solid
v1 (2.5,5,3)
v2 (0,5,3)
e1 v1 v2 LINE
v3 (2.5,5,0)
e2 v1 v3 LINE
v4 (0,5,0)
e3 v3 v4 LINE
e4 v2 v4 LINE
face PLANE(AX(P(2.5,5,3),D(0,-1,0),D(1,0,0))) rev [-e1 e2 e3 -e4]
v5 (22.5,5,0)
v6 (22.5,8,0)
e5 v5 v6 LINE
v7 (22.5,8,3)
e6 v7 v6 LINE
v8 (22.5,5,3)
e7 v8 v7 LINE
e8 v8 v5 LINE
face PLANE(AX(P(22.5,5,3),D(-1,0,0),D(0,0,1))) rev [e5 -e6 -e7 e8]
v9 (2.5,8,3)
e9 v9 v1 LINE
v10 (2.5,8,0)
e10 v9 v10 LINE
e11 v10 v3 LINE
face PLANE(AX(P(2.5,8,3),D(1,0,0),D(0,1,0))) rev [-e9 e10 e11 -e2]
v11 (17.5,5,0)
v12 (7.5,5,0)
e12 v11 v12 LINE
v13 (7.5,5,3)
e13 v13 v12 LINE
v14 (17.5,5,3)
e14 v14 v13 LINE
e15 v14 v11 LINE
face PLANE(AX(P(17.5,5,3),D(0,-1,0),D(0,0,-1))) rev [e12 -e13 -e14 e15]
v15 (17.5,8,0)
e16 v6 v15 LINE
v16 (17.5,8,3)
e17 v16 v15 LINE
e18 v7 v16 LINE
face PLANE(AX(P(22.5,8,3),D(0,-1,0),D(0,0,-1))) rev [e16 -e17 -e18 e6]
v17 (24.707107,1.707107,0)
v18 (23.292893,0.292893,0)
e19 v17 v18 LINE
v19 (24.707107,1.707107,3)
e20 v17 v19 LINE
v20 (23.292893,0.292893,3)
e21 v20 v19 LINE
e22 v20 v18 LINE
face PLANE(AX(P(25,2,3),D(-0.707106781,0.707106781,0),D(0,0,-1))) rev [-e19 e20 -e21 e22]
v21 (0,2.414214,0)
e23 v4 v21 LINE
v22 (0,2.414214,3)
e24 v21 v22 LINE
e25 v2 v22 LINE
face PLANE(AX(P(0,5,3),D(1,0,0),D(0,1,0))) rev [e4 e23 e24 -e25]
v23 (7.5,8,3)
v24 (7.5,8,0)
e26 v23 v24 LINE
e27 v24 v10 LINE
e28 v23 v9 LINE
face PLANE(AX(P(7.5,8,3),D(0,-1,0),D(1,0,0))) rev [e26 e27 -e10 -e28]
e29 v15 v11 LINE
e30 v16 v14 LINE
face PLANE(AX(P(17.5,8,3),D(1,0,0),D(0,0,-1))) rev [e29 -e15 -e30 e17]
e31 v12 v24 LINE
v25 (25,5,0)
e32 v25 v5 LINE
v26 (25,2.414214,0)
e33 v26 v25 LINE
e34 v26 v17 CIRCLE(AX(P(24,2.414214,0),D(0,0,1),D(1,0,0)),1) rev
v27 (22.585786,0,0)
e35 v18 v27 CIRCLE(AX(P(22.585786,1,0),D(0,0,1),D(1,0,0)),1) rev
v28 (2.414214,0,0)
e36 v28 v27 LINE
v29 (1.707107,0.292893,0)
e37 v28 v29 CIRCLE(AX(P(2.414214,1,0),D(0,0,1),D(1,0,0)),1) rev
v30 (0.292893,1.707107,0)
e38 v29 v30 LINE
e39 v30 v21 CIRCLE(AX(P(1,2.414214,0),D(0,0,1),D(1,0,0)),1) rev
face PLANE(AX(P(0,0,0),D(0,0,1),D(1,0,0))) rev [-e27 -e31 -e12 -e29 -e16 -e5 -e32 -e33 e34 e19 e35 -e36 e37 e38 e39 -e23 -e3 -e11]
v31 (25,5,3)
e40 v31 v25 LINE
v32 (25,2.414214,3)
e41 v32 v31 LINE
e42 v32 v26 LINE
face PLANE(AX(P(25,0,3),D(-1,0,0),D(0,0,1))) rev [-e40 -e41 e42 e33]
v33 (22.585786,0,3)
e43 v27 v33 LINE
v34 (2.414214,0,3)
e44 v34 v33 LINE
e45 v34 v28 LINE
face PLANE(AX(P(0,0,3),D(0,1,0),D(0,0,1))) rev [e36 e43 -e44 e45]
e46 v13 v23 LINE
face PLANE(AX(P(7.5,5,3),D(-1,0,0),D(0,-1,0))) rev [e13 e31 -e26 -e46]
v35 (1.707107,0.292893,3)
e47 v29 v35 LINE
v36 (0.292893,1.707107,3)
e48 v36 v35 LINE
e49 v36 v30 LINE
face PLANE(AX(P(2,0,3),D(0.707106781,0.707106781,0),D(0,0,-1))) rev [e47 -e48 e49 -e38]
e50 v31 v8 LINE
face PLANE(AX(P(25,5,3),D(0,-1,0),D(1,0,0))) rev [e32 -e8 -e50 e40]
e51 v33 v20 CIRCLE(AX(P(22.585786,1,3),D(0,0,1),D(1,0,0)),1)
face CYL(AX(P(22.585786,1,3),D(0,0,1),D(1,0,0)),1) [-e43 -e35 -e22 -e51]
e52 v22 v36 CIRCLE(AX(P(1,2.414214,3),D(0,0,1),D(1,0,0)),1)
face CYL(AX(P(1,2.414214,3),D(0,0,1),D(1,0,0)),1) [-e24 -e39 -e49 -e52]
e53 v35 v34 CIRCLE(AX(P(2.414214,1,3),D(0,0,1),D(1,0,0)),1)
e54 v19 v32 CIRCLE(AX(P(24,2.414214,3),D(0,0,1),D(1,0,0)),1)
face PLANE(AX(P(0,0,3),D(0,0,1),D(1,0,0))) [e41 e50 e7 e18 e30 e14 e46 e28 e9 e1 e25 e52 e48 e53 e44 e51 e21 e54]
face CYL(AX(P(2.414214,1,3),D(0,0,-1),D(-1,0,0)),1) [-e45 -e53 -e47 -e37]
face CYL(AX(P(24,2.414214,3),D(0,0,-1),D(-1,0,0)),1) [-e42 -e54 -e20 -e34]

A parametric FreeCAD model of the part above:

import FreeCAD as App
import Part
import Sketcher
from FreeCAD import Vector
Q = App.Units.Quantity


def edges_at(feature, points):
    """Names of the edges that pass closest to the given points."""
    edges = feature.Shape.Edges
    near = lambda p: min(range(len(edges)), key=lambda i: edges[i].distToShape(Part.Vertex(*p))[0])
    return sorted({f"Edge{near(p) + 1}" for p in points})


def add_polygon(sketch, points):
    """Adds a closed chain of lines whose ends are joined by coincident constraints."""
    first, n = sketch.GeometryCount, len(points)
    for a, b in zip(points, points[1:] + points[:1]):
        sketch.addGeometry(Part.LineSegment(App.Vector(*a, 0), App.Vector(*b, 0)), False)
    for i in range(n):
        sketch.addConstraint(Sketcher.Constraint("Coincident", first + i, 2, first + (i + 1) % n, 1))

doc = App.newDocument("Part")
body = doc.addObject("PartDesign::Body", "Body")

sketch1 = doc.addObject("Sketcher::SketchObject", "Sketch")
body.addObject(sketch1)
sketch1.AttachmentSupport = (doc.XY_Plane, [""])
sketch1.MapMode = "FlatFace"
add_polygon(sketch1, [(0, 0), (25, 0), (25, 5), (22.5, 5), (22.5, 8), (17.5, 8), (17.5, 5), (7.5, 5), (7.5, 8), (2.5, 8), (2.5, 5), (0, 5)])
sketch1.addConstraint([
    Sketcher.Constraint("Horizontal", 0),
    Sketcher.Constraint("Vertical", 1),
    Sketcher.Constraint("Horizontal", 2),
    Sketcher.Constraint("Vertical", 3),
    Sketcher.Constraint("Horizontal", 4),
    Sketcher.Constraint("Vertical", 5),
    Sketcher.Constraint("Horizontal", 6),
    Sketcher.Constraint("Vertical", 7),
    Sketcher.Constraint("Horizontal", 8),
    Sketcher.Constraint("Vertical", 9),
    Sketcher.Constraint("Horizontal", 10),
    Sketcher.Constraint("Vertical", 11),
    Sketcher.Constraint("Coincident", 11, 2, -1, 1),
    Sketcher.Constraint("Horizontal", 2, 2, 5, 2),
    Sketcher.Constraint("Horizontal", 4, 2, 7, 2),
    Sketcher.Constraint("Horizontal", 6, 2, 9, 2),
    Sketcher.Constraint("Equal", 4, 8),
    Sketcher.Constraint("Equal", 2, 10),
    Sketcher.Constraint("Equal", 8, 1),
    Sketcher.Constraint("DistanceX", 0, 1, 0, 2, Q("25 mm")),
    Sketcher.Constraint("DistanceX", 4, 2, 4, 1, Q("5 mm")),
    Sketcher.Constraint("DistanceX", 6, 2, 6, 1, Q("10 mm")),
    Sketcher.Constraint("DistanceY", 3, 1, 3, 2, Q("3 mm")),
])
pad1 = doc.addObject("PartDesign::Pad", "Pad")
body.addObject(pad1)
pad1.Profile = sketch1
pad1.Length = 3
doc.recompute()

chamfer = doc.addObject("PartDesign::Chamfer", "Chamfer")
body.addObject(chamfer)
chamfer.Base = (pad1, edges_at(pad1, [(25, 0, 1.5), (0, 0, 1.5)]))
chamfer.Size = 2
doc.recompute()

fillet = doc.addObject("PartDesign::Fillet", "Fillet")
body.addObject(fillet)
fillet.Base = (chamfer, edges_at(chamfer, [
    (25, 2, 1.5),
    (2, 0, 1.5),
    (23, 0, 1.5),
    (0, 2, 1.5),
]))
fillet.Radius = 1

doc.recompute()
